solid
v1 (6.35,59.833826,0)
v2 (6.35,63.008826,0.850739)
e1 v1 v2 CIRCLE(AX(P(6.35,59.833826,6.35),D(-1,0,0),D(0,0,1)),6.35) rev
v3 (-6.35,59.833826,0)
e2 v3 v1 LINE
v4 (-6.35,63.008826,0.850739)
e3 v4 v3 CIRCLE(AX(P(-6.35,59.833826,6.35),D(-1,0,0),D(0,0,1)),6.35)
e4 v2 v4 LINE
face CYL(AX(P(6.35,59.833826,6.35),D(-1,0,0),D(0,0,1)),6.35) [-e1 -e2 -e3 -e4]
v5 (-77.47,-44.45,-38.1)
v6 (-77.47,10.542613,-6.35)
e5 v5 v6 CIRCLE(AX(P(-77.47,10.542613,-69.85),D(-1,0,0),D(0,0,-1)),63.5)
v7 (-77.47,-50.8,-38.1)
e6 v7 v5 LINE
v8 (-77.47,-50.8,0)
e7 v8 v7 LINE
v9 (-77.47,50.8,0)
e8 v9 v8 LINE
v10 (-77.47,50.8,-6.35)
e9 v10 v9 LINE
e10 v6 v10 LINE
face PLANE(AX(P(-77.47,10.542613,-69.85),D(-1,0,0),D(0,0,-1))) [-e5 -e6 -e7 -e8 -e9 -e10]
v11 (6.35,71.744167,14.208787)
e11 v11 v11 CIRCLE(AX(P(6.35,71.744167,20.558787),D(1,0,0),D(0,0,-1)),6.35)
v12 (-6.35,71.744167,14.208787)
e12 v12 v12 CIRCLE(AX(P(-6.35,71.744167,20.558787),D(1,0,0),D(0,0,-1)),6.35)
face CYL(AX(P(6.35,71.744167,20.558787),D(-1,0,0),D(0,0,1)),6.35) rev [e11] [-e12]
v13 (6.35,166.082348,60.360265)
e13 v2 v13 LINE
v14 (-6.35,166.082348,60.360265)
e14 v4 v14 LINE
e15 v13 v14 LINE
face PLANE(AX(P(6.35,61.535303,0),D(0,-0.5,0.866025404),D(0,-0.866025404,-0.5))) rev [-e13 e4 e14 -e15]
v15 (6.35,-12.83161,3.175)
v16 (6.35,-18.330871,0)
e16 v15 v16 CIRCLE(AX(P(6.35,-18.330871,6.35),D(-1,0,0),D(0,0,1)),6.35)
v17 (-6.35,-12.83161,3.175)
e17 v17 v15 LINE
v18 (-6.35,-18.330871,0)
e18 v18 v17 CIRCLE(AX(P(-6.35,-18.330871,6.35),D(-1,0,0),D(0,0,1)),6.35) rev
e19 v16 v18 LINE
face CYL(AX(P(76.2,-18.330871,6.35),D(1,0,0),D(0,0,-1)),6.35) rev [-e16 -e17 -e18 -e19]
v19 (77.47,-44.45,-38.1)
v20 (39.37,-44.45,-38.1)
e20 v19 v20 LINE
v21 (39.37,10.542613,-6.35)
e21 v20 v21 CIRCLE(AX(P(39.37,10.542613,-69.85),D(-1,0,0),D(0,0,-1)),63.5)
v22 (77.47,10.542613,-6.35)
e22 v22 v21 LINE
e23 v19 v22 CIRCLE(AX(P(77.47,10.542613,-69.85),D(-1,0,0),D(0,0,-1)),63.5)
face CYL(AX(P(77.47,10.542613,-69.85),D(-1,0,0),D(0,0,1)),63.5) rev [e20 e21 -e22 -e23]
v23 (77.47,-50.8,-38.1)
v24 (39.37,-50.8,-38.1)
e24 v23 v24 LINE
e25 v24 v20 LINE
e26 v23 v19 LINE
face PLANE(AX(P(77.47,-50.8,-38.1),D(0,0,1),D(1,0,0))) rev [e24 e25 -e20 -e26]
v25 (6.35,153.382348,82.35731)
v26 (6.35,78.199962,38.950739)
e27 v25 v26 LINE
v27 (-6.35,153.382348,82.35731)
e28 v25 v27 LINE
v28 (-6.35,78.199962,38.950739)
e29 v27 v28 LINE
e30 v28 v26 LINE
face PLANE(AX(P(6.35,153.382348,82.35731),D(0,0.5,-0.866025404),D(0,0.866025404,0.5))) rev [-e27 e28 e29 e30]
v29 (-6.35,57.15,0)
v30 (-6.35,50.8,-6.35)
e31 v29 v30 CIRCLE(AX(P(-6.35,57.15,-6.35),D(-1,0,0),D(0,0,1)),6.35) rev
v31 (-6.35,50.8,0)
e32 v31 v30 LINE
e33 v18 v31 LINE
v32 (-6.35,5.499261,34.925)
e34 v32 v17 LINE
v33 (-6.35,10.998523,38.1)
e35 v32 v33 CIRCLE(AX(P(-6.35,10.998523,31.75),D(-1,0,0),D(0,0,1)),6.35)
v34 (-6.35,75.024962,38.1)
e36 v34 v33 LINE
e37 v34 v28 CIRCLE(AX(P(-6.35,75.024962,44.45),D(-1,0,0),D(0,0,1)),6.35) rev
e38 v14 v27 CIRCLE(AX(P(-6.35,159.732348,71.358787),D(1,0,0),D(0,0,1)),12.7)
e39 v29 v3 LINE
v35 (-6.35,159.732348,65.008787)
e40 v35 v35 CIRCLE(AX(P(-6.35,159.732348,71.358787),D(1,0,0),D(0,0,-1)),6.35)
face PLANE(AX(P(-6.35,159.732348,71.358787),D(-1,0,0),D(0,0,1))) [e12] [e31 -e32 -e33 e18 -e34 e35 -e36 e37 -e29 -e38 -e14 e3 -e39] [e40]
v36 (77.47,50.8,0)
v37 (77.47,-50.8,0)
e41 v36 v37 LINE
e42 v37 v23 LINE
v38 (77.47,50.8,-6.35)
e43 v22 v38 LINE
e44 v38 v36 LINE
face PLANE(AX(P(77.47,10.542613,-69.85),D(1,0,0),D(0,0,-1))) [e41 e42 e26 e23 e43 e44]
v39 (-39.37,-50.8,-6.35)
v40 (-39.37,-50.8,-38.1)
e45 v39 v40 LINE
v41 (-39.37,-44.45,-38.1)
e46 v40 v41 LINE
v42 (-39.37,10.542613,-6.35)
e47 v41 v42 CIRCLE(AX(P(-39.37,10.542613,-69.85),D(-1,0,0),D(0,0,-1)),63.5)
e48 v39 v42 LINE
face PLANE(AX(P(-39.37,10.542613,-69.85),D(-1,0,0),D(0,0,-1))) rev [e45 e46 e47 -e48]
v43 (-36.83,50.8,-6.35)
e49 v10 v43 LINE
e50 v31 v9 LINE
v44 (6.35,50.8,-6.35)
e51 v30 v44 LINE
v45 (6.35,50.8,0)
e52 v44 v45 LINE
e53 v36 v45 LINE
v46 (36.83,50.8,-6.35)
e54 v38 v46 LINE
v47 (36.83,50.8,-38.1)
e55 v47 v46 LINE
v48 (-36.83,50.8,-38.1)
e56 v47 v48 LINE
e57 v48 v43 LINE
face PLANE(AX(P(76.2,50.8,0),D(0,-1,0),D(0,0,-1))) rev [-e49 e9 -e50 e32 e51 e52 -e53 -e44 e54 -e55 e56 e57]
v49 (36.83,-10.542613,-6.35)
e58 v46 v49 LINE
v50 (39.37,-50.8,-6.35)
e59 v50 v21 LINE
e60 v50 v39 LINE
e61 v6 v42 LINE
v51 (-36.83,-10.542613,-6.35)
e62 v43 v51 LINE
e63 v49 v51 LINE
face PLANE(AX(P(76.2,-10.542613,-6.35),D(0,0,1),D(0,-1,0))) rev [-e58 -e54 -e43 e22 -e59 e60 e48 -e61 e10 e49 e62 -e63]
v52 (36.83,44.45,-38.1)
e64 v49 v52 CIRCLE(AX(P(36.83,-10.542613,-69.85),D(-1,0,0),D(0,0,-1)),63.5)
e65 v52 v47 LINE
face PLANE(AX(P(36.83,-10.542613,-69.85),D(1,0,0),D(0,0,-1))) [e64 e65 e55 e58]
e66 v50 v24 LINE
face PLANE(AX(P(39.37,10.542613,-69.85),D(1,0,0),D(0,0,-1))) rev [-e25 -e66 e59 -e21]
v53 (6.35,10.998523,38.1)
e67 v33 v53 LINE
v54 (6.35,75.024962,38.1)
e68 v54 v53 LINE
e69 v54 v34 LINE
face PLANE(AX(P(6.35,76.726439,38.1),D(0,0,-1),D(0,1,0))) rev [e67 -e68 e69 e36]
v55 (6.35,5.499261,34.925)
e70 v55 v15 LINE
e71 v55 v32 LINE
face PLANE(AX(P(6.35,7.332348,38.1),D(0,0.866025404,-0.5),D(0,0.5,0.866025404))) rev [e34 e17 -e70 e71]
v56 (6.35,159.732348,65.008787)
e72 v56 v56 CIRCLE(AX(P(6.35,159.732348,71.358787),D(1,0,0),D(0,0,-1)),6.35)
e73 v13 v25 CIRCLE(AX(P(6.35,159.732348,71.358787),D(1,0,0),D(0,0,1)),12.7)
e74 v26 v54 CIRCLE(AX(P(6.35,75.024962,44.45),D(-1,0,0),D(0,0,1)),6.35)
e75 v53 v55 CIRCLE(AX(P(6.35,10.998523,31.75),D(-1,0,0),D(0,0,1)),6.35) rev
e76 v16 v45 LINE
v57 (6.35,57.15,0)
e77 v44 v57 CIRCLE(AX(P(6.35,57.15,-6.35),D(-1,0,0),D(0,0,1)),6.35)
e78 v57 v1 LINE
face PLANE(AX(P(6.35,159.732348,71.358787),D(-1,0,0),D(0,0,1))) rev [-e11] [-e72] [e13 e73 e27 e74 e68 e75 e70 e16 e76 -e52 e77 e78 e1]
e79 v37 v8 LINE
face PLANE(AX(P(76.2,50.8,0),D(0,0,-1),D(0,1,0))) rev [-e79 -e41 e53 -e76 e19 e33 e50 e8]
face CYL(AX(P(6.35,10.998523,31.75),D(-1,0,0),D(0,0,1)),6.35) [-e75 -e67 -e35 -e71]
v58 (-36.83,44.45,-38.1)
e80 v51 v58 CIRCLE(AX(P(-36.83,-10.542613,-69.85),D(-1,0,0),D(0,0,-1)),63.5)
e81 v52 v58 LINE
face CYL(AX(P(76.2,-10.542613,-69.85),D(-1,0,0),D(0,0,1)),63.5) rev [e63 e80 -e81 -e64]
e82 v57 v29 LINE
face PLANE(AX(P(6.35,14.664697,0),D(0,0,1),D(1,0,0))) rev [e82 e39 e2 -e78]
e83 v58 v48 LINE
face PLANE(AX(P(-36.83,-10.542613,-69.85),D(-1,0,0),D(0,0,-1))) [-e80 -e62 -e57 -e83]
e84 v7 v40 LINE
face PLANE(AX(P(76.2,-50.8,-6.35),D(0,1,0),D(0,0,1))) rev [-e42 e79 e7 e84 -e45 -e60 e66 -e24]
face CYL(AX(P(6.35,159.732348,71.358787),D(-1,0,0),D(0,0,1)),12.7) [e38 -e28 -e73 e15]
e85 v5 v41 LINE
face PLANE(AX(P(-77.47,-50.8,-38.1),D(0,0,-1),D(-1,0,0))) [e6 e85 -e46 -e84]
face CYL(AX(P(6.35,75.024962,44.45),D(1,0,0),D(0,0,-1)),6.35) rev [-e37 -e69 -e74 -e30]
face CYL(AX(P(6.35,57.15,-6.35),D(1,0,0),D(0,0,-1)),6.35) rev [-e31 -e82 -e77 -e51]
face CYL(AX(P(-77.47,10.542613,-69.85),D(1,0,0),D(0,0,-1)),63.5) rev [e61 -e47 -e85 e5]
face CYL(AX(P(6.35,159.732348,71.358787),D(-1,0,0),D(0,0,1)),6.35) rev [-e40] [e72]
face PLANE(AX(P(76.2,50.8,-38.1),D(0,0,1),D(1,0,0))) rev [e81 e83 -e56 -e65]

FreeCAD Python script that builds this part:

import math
import FreeCAD as App
import Part
import Sketcher
from FreeCAD import Vector
Q = App.Units.Quantity


def edges_at(feature, points):
    """Names of the edges that pass closest to the given points."""
    edges = feature.Shape.Edges
    near = lambda p: min(range(len(edges)), key=lambda i: edges[i].distToShape(Part.Vertex(*p))[0])
    return sorted({f"Edge{near(p) + 1}" for p in points})

doc = App.newDocument("Part")
body = doc.addObject("PartDesign::Body", "Body")

sketch1 = body.newObject("Sketcher::SketchObject", "Sketch")
sketch1.AttachmentSupport = (doc.getObject("YZ_Plane"), [""])
sketch1.MapMode = "FlatFace"
sketch1.addGeometry(Part.LineSegment(Vector(51, -38, 0), Vector(51, 0, 0)), False)
sketch1.addGeometry(Part.LineSegment(Vector(51, 0, 0), Vector(-51, 0, 0)), False)
sketch1.addGeometry(Part.LineSegment(Vector(-51, 0, 0), Vector(-51, -6, 0)), False)
sketch1.addGeometry(Part.LineSegment(Vector(-51, -6, 0), Vector(-11, -6, 0)), False)
sketch1.addGeometry(Part.ArcOfCircle(Part.Circle(Vector(-11, -70, 0), Vector(0, 0, 1), 64), math.radians(30), math.radians(90)), False)
sketch1.addGeometry(Part.LineSegment(Vector(44, -38, 0), Vector(51, -38, 0)), False)
sketch1.addConstraint(Sketcher.Constraint("Coincident", 0, 2, 1, 1))
sketch1.addConstraint(Sketcher.Constraint("Coincident", 1, 2, 2, 1))
sketch1.addConstraint(Sketcher.Constraint("Coincident", 2, 2, 3, 1))
sketch1.addConstraint(Sketcher.Constraint("Tangent", 3, 2, 4, 2))
sketch1.addConstraint(Sketcher.Constraint("Coincident", 4, 1, 5, 1))
sketch1.addConstraint(Sketcher.Constraint("Coincident", 5, 2, 0, 1))
sketch1.addConstraint(Sketcher.Constraint("Vertical", 0))
sketch1.addConstraint(Sketcher.Constraint("Horizontal", 1))
sketch1.addConstraint(Sketcher.Constraint("Vertical", 2))
sketch1.addConstraint(Sketcher.Constraint("Horizontal", 3))
sketch1.addConstraint(Sketcher.Constraint("Horizontal", 5))
sketch1.addConstraint(Sketcher.Constraint("Symmetric", 0, 2, 1, 2, -1, 1))
sketch1.addConstraint(Sketcher.Constraint("Equal", 5, 2))
sketch1.addConstraint(Sketcher.Constraint("Radius", 4, Q("2.5 in")))
sketch1.addConstraint(Sketcher.Constraint("DistanceX", 1, 2, 1, 1, Q("4 in")))
sketch1.addConstraint(Sketcher.Constraint("DistanceY", 0, 1, 0, 2, Q("1.5 in")))
sketch1.addConstraint(Sketcher.Constraint("DistanceX", 5, 1, 5, 2, Q("0.25 in")))
pad1 = body.newObject("PartDesign::Pad", "Pad")
pad1.Profile = sketch1
pad1.Length = Q("6 in")
pad1.Midplane = True

sketch2 = body.newObject("Sketcher::SketchObject", "Sketch001")
sketch2.AttachmentSupport = (doc.getObject("YZ_Plane"), [""])
sketch2.MapMode = "FlatFace"
sketch2.AttachmentOffset = App.Placement(Vector(0, 0, 1.55 * 25.4), App.Rotation())
sketch2.addGeometry(Part.LineSegment(Vector(-51, 0, 0), Vector(-51, -6, 0)), False)
sketch2.addGeometry(Part.LineSegment(Vector(-51, -6, 0), Vector(-11, -6, 0)), False)
sketch2.addGeometry(Part.ArcOfCircle(Part.Circle(Vector(-11, -70, 0), Vector(0, 0, 1), 64), math.radians(30), math.radians(90)), False)
sketch2.addGeometry(Part.LineSegment(Vector(44, -38, 0), Vector(51, -38, 0)), False)
sketch2.addGeometry(Part.LineSegment(Vector(51, -38, 0), Vector(51, 0, 0)), False)
sketch2.addGeometry(Part.LineSegment(Vector(51, 0, 0), Vector(-51, 0, 0)), False)
sketch2.addConstraint(Sketcher.Constraint("Coincident", 0, 2, 1, 1))
sketch2.addConstraint(Sketcher.Constraint("Tangent", 1, 2, 2, 2))
sketch2.addConstraint(Sketcher.Constraint("Coincident", 2, 1, 3, 1))
sketch2.addConstraint(Sketcher.Constraint("Coincident", 3, 2, 4, 1))
sketch2.addConstraint(Sketcher.Constraint("Coincident", 4, 2, 5, 1))
sketch2.addConstraint(Sketcher.Constraint("Coincident", 5, 2, 0, 1))
sketch2.addConstraint(Sketcher.Constraint("Vertical", 0))
sketch2.addConstraint(Sketcher.Constraint("Horizontal", 1))
sketch2.addConstraint(Sketcher.Constraint("Horizontal", 3))
sketch2.addConstraint(Sketcher.Constraint("Vertical", 4))
sketch2.addConstraint(Sketcher.Constraint("Horizontal", 5))
sketch2.addConstraint(Sketcher.Constraint("Symmetric", 4, 2, 5, 2, -1, 1))
sketch2.addConstraint(Sketcher.Constraint("Equal", 3, 0))
sketch2.addConstraint(Sketcher.Constraint("Radius", 2, Q("2.5 in")))
sketch2.addConstraint(Sketcher.Constraint("DistanceX", 5, 2, 5, 1, Q("4 in")))
sketch2.addConstraint(Sketcher.Constraint("DistanceY", 4, 1, 4, 2, Q("1.5 in")))
sketch2.addConstraint(Sketcher.Constraint("DistanceX", 3, 1, 3, 2, Q("0.25 in")))
pocket1 = body.newObject("PartDesign::Pocket", "Pocket")
pocket1.Profile = sketch2
pocket1.Length = Q("1.5 in")
pocket1.Reversed = True
doc.recompute()

mirrored = body.newObject("PartDesign::Mirrored", "Mirrored")
mirrored.Originals = [pocket1]
mirrored.MirrorPlane = (doc.getObject("YZ_Plane"), [""])
body.Tip = mirrored

sketch3 = body.newObject("Sketcher::SketchObject", "Sketch002")
sketch3.AttachmentSupport = (doc.getObject("YZ_Plane"), [""])
sketch3.MapMode = "FlatFace"
sketch3.AttachmentOffset = App.Placement(Vector(0, 0, 1.55 * 25.4), App.Rotation())
sketch3.addGeometry(Part.LineSegment(Vector(51, 0, 0), Vector(-51, 0, 0)), False)
sketch3.addGeometry(Part.LineSegment(Vector(-51, 0, 0), Vector(-51, -38, 0)), False)
sketch3.addGeometry(Part.LineSegment(Vector(-51, -38, 0), Vector(-44, -38, 0)), False)
sketch3.addGeometry(Part.ArcOfCircle(Part.Circle(Vector(11, -70, 0), Vector(0, 0, 1), 64), math.radians(90), math.radians(150)), False)
sketch3.addGeometry(Part.LineSegment(Vector(11, -6, 0), Vector(51, -6, 0)), False)
sketch3.addGeometry(Part.LineSegment(Vector(51, -6, 0), Vector(51, 0, 0)), False)
sketch3.addConstraint(Sketcher.Constraint("Coincident", 0, 2, 1, 1))
sketch3.addConstraint(Sketcher.Constraint("Coincident", 1, 2, 2, 1))
sketch3.addConstraint(Sketcher.Constraint("Coincident", 2, 2, 3, 2))
sketch3.addConstraint(Sketcher.Constraint("Tangent", 3, 1, 4, 1))
sketch3.addConstraint(Sketcher.Constraint("Coincident", 4, 2, 5, 1))
sketch3.addConstraint(Sketcher.Constraint("Coincident", 5, 2, 0, 1))
sketch3.addConstraint(Sketcher.Constraint("Horizontal", 0))
sketch3.addConstraint(Sketcher.Constraint("Vertical", 1))
sketch3.addConstraint(Sketcher.Constraint("Horizontal", 2))
sketch3.addConstraint(Sketcher.Constraint("Horizontal", 4))
sketch3.addConstraint(Sketcher.Constraint("Vertical", 5))
sketch3.addConstraint(Sketcher.Constraint("Symmetric", 0, 2, 5, 2, -1, 1))
sketch3.addConstraint(Sketcher.Constraint("Equal", 2, 5))
sketch3.addConstraint(Sketcher.Constraint("Radius", 3, Q("2.5 in")))
sketch3.addConstraint(Sketcher.Constraint("DistanceX", 0, 2, 0, 1, Q("4 in")))
sketch3.addConstraint(Sketcher.Constraint("DistanceY", 1, 2, 1, 1, Q("1.5 in")))
sketch3.addConstraint(Sketcher.Constraint("DistanceX", 2, 1, 2, 2, Q("0.25 in")))
pad2 = body.newObject("PartDesign::Pad", "Pad001")
pad2.Profile = sketch3
pad2.Length = Q("1.5 in")
doc.recompute()

mirrored2 = body.newObject("PartDesign::Mirrored", "Mirrored001")
mirrored2.Originals = [pad2]
mirrored2.MirrorPlane = (doc.getObject("YZ_Plane"), [""])
body.Tip = mirrored2

sketch4 = body.newObject("Sketcher::SketchObject", "Sketch003")
sketch4.AttachmentSupport = (doc.getObject("YZ_Plane"), [""])
sketch4.MapMode = "FlatFace"
sketch4.addGeometry(Part.LineSegment(Vector(153, 82, 0), Vector(77, 38, 0)), False)
sketch4.addGeometry(Part.LineSegment(Vector(77, 38, 0), Vector(7, 38, 0)), False)
sketch4.addGeometry(Part.LineSegment(Vector(7, 38, 0), Vector(-15, 0, 0)), False)
sketch4.addGeometry(Part.LineSegment(Vector(-15, 0, 0), Vector(62, 0, 0)), False)
sketch4.addGeometry(Part.LineSegment(Vector(62, 0, 0), Vector(166, 60, 0)), False)
sketch4.addGeometry(Part.ArcOfCircle(Part.Circle(Vector(160, 71, 0), Vector(0, 0, 1), 13), math.radians(-60), math.radians(120)), False)
sketch4.addGeometry(Part.Circle(Vector(72, 21, 0), Vector(0, 0, 1), 6), False)
sketch4.addGeometry(Part.Circle(Vector(160, 71, 0), Vector(0, 0, 1), 6), False)
sketch4.addConstraint(Sketcher.Constraint("Coincident", 0, 2, 1, 1))
sketch4.addConstraint(Sketcher.Constraint("Coincident", 1, 2, 2, 1))
sketch4.addConstraint(Sketcher.Constraint("Coincident", 2, 2, 3, 1))
sketch4.addConstraint(Sketcher.Constraint("Coincident", 3, 2, 4, 1))
sketch4.addConstraint(Sketcher.Constraint("Tangent", 4, 2, 5, 1))
sketch4.addConstraint(Sketcher.Constraint("Tangent", 5, 2, 0, 1))
sketch4.addConstraint(Sketcher.Constraint("Horizontal", 1))
sketch4.addConstraint(Sketcher.Constraint("Horizontal", 3))
sketch4.addConstraint(Sketcher.Constraint("Coincident", 7, 3, 5, 3))
sketch4.addConstraint(Sketcher.Constraint("Equal", 6, 7))
sketch4.addConstraint(Sketcher.Constraint("PointOnObject", 2, 2, -1))
sketch4.addConstraint(Sketcher.Constraint("Parallel", 0, 4))
sketch4.addConstraint(Sketcher.Constraint("Diameter", 6, Q("0.5 in")))
sketch4.addConstraint(Sketcher.Constraint("Radius", 5, Q("0.5 in")))
sketch4.addConstraint(Sketcher.Constraint("DistanceX", 3, 1, 3, 2, Q("3 in")))
sketch4.addConstraint(Sketcher.Constraint("Angle", 0, Q("-150 deg")))
sketch4.addConstraint(Sketcher.Constraint("Angle", 2, Q("-120 deg")))
sketch4.addConstraint(Sketcher.Constraint("DistanceY", 6, 3, 5, 3, Q("2 in")))
sketch4.addConstraint(Sketcher.Constraint("DistanceX", 1, 2, 5, 3, Q("6 in")))
sketch4.addConstraint(Sketcher.Constraint("DistanceY", -1, 1, 0, 2, Q("1.5 in")))
sketch4.addConstraint(Sketcher.Constraint("DistanceX", -1, 1, 5, 3, Q("159.732348 mm")))
sketch4.addConstraint(Sketcher.Constraint("DistanceX", 6, 3, 5, 3, Q("87.988181 mm")))
pad3 = body.newObject("PartDesign::Pad", "Pad002")
pad3.Profile = sketch4
pad3.Length = Q("0.5 in")
pad3.Midplane = True
doc.recompute()

fillet = body.newObject("PartDesign::Fillet", "Fillet")
fillet.Base = (pad3, edges_at(pad3, [
    (0, 50.8, 0),
    (0, -14.665, 0),
    (0, 61.535, 0),
    (0, 76.726, 38.1),
    (0, 7.332, 38.1),
]))
fillet.Radius = Q("0.25 in")

sketch5 = body.newObject("Sketcher::SketchObject", "Sketch004")
sketch5.AttachmentSupport = (doc.getObject("YZ_Plane"), [""])
sketch5.MapMode = "FlatFace"
sketch5.AttachmentOffset = App.Placement(Vector(0, 0, 1.55 * 25.4), App.Rotation())
sketch5.addGeometry(Part.LineSegment(Vector(51, -38, 0), Vector(51, -6, 0)), False)
sketch5.addGeometry(Part.LineSegment(Vector(51, -6, 0), Vector(-11, -6, 0)), False)
sketch5.addGeometry(Part.ArcOfCircle(Part.Circle(Vector(-11, -70, 0), Vector(0, 0, 1), 64), math.radians(80.44), math.radians(90)), False)
sketch5.addGeometry(Part.ArcOfCircle(Part.Circle(Vector(-11, -70, 0), Vector(0, 0, 1), 64), math.radians(30), math.radians(80)), False)
sketch5.addGeometry(Part.LineSegment(Vector(44, -38, 0), Vector(51, -38, 0)), False)
sketch5.addConstraint(Sketcher.Constraint("Coincident", 0, 2, 1, 1))
sketch5.addConstraint(Sketcher.Constraint("Tangent", 1, 2, 2, 2))
sketch5.addConstraint(Sketcher.Constraint("Tangent", 2, 1, 3, 2))
sketch5.addConstraint(Sketcher.Constraint("Coincident", 3, 1, 4, 1))
sketch5.addConstraint(Sketcher.Constraint("Coincident", 4, 2, 0, 1))
sketch5.addConstraint(Sketcher.Constraint("Vertical", 0))
sketch5.addConstraint(Sketcher.Constraint("Horizontal", 1))
sketch5.addConstraint(Sketcher.Constraint("Horizontal", 4))
sketch5.addConstraint(Sketcher.Constraint("Equal", 2, 3))
sketch5.addConstraint(Sketcher.Constraint("PointOnObject", 2, 1, -2))
sketch5.addConstraint(Sketcher.Constraint("Radius", 2, Q("2.5 in")))
sketch5.addConstraint(Sketcher.Constraint("DistanceX", -1, 1, 0, 2, Q("2 in")))
sketch5.addConstraint(Sketcher.Constraint("DistanceX", 4, 1, 4, 2, Q("0.25 in")))
sketch5.addConstraint(Sketcher.Constraint("DistanceY", 0, 1, 0, 2, Q("1.25 in")))
sketch5.addConstraint(Sketcher.Constraint("DistanceY", 3, 1, -1, 1, Q("1.5 in")))
pocket2 = body.newObject("PartDesign::Pocket", "Pocket001")
pocket2.Profile = sketch5
pocket2.Length = Q("0.1 in")
doc.recompute()

mirrored3 = body.newObject("PartDesign::Mirrored", "Mirrored002")
mirrored3.Originals = [pocket2]
mirrored3.MirrorPlane = (doc.getObject("YZ_Plane"), [""])
body.Tip = mirrored3

doc.recompute()
